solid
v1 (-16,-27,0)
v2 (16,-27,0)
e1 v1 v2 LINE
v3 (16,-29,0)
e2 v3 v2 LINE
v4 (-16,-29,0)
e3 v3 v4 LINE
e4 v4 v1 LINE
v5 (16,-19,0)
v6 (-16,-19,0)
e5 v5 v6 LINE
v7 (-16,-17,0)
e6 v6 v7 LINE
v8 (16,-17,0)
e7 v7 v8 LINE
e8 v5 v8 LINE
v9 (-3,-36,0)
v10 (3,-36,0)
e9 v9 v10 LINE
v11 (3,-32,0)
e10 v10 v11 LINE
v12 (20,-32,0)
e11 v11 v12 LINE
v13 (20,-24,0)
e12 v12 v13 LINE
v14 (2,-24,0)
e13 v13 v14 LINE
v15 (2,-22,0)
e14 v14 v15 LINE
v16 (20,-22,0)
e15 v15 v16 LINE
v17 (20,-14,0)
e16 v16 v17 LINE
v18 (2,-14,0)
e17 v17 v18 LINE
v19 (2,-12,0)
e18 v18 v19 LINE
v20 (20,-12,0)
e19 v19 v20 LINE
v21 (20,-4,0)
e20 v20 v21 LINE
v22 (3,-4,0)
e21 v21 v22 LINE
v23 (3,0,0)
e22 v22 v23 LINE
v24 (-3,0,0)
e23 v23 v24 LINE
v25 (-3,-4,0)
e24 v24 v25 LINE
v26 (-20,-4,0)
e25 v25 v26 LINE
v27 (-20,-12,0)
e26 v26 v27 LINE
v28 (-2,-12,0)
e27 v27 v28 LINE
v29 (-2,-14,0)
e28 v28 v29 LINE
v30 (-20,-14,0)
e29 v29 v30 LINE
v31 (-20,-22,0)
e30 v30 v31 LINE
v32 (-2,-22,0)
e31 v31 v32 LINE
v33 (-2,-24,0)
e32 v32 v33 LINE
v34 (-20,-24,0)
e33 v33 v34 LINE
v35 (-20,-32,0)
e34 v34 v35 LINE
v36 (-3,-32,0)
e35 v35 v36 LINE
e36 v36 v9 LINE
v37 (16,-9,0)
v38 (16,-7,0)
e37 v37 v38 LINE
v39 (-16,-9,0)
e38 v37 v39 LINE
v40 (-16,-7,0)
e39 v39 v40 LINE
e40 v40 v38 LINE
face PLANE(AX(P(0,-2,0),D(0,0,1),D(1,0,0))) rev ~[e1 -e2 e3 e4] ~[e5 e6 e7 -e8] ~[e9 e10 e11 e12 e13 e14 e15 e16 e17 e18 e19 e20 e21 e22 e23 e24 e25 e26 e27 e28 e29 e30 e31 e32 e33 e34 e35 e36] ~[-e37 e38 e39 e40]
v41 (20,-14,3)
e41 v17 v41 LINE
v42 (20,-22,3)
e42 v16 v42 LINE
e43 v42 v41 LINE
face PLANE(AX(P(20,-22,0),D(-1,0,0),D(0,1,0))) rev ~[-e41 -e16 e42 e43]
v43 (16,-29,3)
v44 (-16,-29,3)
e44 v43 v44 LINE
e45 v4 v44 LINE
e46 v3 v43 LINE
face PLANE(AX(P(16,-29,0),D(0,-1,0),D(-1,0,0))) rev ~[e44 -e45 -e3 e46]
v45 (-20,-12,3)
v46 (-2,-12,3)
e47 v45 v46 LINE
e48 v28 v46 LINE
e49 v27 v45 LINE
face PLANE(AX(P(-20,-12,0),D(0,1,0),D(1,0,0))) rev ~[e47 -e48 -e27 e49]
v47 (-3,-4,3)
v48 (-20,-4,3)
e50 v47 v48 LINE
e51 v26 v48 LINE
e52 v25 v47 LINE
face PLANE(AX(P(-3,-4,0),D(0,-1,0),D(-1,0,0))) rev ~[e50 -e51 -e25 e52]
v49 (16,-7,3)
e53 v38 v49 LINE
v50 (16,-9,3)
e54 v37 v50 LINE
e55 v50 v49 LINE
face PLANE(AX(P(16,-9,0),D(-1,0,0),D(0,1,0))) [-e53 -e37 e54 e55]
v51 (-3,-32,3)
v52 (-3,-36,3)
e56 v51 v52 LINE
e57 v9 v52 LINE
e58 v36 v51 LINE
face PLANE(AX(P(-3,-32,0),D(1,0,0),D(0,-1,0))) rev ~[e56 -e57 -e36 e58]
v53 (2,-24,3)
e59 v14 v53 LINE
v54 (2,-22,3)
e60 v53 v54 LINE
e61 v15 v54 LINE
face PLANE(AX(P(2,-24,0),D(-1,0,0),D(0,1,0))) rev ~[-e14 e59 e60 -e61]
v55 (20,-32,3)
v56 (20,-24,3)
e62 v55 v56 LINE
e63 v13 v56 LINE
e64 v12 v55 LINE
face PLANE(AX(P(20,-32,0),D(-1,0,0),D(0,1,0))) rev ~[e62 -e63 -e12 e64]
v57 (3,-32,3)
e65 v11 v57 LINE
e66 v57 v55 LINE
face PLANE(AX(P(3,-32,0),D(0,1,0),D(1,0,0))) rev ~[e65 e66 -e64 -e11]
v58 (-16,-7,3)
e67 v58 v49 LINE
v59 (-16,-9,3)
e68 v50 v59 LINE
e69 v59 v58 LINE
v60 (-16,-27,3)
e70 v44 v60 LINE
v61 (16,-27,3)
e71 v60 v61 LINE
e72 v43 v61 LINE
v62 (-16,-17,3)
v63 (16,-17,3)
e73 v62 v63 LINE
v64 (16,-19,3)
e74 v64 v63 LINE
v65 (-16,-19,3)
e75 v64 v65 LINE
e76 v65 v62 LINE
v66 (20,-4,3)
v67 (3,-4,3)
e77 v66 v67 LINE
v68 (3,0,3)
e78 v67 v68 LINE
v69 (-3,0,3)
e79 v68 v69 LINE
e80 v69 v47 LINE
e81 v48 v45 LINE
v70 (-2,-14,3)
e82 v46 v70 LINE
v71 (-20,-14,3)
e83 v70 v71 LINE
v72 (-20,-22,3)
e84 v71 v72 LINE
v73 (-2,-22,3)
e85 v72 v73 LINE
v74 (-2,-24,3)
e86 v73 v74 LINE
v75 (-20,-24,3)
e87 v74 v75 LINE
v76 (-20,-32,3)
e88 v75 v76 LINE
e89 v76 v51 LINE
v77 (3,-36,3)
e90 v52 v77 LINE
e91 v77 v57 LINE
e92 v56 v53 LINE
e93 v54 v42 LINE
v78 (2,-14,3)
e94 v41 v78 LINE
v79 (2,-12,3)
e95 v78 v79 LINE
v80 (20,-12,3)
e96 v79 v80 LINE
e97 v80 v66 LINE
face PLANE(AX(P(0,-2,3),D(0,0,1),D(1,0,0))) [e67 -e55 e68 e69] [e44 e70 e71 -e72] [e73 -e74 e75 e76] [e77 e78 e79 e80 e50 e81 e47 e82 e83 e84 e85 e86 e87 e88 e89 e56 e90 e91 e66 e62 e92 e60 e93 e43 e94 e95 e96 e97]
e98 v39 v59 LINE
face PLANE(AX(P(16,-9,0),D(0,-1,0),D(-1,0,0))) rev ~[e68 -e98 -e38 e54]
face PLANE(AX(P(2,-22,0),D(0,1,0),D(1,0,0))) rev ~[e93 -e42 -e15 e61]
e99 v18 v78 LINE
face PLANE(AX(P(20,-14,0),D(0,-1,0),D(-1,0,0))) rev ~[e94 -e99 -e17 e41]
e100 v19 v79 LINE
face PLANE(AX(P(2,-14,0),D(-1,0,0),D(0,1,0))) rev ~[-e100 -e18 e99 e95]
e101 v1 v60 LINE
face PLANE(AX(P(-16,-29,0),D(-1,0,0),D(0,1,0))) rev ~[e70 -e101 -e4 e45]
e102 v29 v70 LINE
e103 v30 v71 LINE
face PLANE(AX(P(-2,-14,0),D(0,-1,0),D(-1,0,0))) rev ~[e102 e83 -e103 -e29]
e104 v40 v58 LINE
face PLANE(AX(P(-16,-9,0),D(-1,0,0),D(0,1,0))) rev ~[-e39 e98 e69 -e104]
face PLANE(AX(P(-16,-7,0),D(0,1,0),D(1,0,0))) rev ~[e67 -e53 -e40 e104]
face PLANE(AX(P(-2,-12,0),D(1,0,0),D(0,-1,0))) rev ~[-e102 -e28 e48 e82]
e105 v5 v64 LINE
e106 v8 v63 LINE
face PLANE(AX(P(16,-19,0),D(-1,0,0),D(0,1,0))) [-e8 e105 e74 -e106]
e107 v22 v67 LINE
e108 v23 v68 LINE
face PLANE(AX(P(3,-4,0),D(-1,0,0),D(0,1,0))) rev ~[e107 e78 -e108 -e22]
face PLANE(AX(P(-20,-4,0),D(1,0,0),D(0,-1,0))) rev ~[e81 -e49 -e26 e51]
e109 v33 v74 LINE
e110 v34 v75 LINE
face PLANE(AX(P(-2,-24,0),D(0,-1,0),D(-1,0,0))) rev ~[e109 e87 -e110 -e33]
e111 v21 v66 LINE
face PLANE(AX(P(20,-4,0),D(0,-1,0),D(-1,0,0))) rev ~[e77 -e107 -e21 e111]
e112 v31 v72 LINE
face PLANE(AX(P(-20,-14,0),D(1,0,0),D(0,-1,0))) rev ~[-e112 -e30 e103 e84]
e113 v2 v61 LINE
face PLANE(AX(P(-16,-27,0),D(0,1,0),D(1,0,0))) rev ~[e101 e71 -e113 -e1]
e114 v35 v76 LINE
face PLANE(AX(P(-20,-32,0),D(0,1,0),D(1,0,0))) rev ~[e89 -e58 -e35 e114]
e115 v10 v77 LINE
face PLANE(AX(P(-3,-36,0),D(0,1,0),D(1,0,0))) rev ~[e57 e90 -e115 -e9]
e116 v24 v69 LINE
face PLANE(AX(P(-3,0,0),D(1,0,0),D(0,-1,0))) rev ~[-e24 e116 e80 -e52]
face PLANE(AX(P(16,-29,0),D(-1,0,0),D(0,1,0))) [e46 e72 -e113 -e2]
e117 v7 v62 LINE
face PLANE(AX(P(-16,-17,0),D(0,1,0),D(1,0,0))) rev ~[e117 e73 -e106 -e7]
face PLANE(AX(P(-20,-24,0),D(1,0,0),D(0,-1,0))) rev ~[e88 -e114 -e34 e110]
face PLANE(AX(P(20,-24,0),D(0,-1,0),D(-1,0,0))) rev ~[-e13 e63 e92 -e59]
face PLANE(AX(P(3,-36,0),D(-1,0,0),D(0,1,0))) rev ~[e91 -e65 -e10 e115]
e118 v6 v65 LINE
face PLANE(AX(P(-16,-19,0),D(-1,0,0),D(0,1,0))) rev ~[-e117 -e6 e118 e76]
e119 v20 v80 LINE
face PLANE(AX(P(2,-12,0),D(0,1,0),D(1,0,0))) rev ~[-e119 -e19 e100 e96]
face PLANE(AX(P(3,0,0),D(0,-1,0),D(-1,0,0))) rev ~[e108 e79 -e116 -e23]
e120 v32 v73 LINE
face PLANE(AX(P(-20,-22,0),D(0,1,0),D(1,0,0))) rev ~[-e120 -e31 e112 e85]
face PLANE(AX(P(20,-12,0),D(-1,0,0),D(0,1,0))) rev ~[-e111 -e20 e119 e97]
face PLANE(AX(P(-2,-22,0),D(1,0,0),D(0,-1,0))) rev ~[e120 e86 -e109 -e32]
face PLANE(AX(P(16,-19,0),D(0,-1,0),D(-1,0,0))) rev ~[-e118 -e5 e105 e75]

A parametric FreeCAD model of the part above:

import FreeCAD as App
import Part
import Sketcher

V = App.Vector


def add_polygon(sketch, points):
    """Adds a closed chain of lines whose ends are joined by coincident constraints."""
    first, n = sketch.GeometryCount, len(points)
    for a, b in zip(points, points[1:] + points[:1]):
        sketch.addGeometry(Part.LineSegment(App.Vector(*a, 0), App.Vector(*b, 0)), False)
    for i in range(n):
        sketch.addConstraint(Sketcher.Constraint("Coincident", first + i, 2, first + (i + 1) % n, 1))

doc = App.newDocument("Part")
params = doc.addObject("Spreadsheet::Sheet", "Params")
for row, (alias, value) in enumerate([
    ("sketch1_width", "17 mm"),
    ("sketch1_width2", "18 mm"),
    ("sketch1_width3", "6 mm"),
    ("sketch1_width4", "32 mm"),
    ("sketch1_height", "4 mm"),
    ("pad1_length", "3 mm"),
], start=1):
    params.set(f"A{row}", alias)
    params.set(f"B{row}", "=" + value)
    params.setAlias(f"B{row}", alias)

body = doc.addObject("PartDesign::Body", "Body")

# Sketch on XY plane
sketch1 = doc.addObject("Sketcher::SketchObject", "Sketch")
body.addObject(sketch1)
sketch1.AttachmentSupport = (doc.XY_Plane, [""])
sketch1.MapMode = "FlatFace"
add_polygon(sketch1, [(-3, 0), (-3, -4), (-20, -4), (-20, -12), (-2, -12), (-2, -14), (-20, -14), (-20, -22), (-2, -22), (-2, -24), (-20, -24), (-20, -32), (-3, -32), (-3, -36), (3, -36), (3, -32), (20, -32), (20, -24), (2, -24), (2, -22), (20, -22), (20, -14), (2, -14), (2, -12), (20, -12), (20, -4), (3, -4), (3, 0)])  # lines 0-27
add_polygon(sketch1, [(16, -29), (-16, -29), (-16, -27), (16, -27)])  # lines 28-31
add_polygon(sketch1, [(16, -19), (-16, -19), (-16, -17), (16, -17)])  # lines 32-35
add_polygon(sketch1, [(16, -9), (-16, -9), (-16, -7), (16, -7)])  # lines 36-39
sketch1.addConstraint([
    Sketcher.Constraint("Vertical", 0),
    Sketcher.Constraint("Horizontal", 1),
    Sketcher.Constraint("Vertical", 2),
    Sketcher.Constraint("Horizontal", 3),
    Sketcher.Constraint("Vertical", 4),
    Sketcher.Constraint("Horizontal", 5),
    Sketcher.Constraint("Vertical", 6),
    Sketcher.Constraint("Horizontal", 7),
    Sketcher.Constraint("Vertical", 8),
    Sketcher.Constraint("Horizontal", 9),
    Sketcher.Constraint("Vertical", 10),
    Sketcher.Constraint("Horizontal", 11),
    Sketcher.Constraint("Vertical", 12),
    Sketcher.Constraint("Horizontal", 13),
    Sketcher.Constraint("Vertical", 14),
    Sketcher.Constraint("Horizontal", 15),
    Sketcher.Constraint("Vertical", 16),
    Sketcher.Constraint("Horizontal", 17),
    Sketcher.Constraint("Vertical", 18),
    Sketcher.Constraint("Horizontal", 19),
    Sketcher.Constraint("Vertical", 20),
    Sketcher.Constraint("Horizontal", 21),
    Sketcher.Constraint("Vertical", 22),
    Sketcher.Constraint("Horizontal", 23),
    Sketcher.Constraint("Vertical", 24),
    Sketcher.Constraint("Horizontal", 25),
    Sketcher.Constraint("Vertical", 26),
    Sketcher.Constraint("Horizontal", 27),
    Sketcher.Constraint("Horizontal", 28),
    Sketcher.Constraint("Vertical", 29),
    Sketcher.Constraint("Horizontal", 30),
    Sketcher.Constraint("Vertical", 31),
    Sketcher.Constraint("Horizontal", 32),
    Sketcher.Constraint("Vertical", 33),
    Sketcher.Constraint("Horizontal", 34),
    Sketcher.Constraint("Vertical", 35),
    Sketcher.Constraint("Horizontal", 36),
    Sketcher.Constraint("Vertical", 37),
    Sketcher.Constraint("Horizontal", 38),
    Sketcher.Constraint("Vertical", 39),
    Sketcher.Constraint("Symmetric", 26, 2, 27, 2, -1, 1),
    Sketcher.Constraint("Symmetric", 11, 2, 14, 2, -2),
    Sketcher.Constraint("Symmetric", 9, 2, 16, 2, -2),
    Sketcher.Constraint("Symmetric", 7, 2, 18, 2, -2),
    Sketcher.Constraint("Symmetric", 5, 2, 20, 2, -2),
    Sketcher.Constraint("Symmetric", 3, 2, 22, 2, -2),
    Sketcher.Constraint("Symmetric", 1, 2, 24, 2, -2),
    Sketcher.Constraint("Vertical", 2, 2, 5, 2),
    Sketcher.Constraint("Vertical", 4, 2, 7, 2),
    Sketcher.Constraint("Vertical", 6, 2, 9, 2),
    Sketcher.Constraint("Vertical", 0, 2, 11, 2),
    Sketcher.Constraint("Vertical", 29, 2, 32, 2),
    Sketcher.Constraint("Vertical", 31, 2, 34, 2),
    Sketcher.Constraint("Vertical", 33, 2, 36, 2),
    Sketcher.Constraint("Vertical", 35, 2, 38, 2),
    Sketcher.Constraint("Equal", 2, 6),
    Sketcher.Constraint("Equal", 4, 8),
    Sketcher.Constraint("Equal", 6, 10),
    Sketcher.Constraint("Equal", 0, 12),
    Sketcher.Constraint("Equal", 22, 29),
    Sketcher.Constraint("Equal", 31, 33),
    Sketcher.Constraint("Equal", 35, 37),
    Sketcher.Constraint("DistanceX", 1, 2, 1, 1, 17.0),
    Sketcher.Constraint("DistanceX", 3, 1, 3, 2, 18.0),
    Sketcher.Constraint("DistanceX", 13, 1, 13, 2, 6.0),
    Sketcher.Constraint("DistanceX", 28, 2, 28, 1, 32.0),
    Sketcher.Constraint("DistanceY", 0, 2, 0, 1, 4.0),
    Sketcher.Constraint("DistanceY", 2, 2, 2, 1, 8.0),
    Sketcher.Constraint("DistanceY", 4, 2, 4, 1, 2.0),
    Sketcher.Constraint("DistanceX", 28, 2, -1, 1, 16.0),
    Sketcher.Constraint("DistanceY", 28, 2, -1, 1, 29.0),
    Sketcher.Constraint("DistanceY", 32, 2, -1, 1, 19.0),
    Sketcher.Constraint("DistanceY", 36, 2, -1, 1, 9.0),
])
sketch1.setExpression("Constraints[102]", "Params.sketch1_width")
sketch1.setExpression("Constraints[103]", "Params.sketch1_width2")
sketch1.setExpression("Constraints[104]", "Params.sketch1_width3")
sketch1.setExpression("Constraints[105]", "Params.sketch1_width4")
sketch1.setExpression("Constraints[106]", "Params.sketch1_height")
pad1 = doc.addObject("PartDesign::Pad", "Pad")
body.addObject(pad1)
pad1.Profile = sketch1
pad1.setExpression("Length", "Params.pad1_length")

doc.recompute()
